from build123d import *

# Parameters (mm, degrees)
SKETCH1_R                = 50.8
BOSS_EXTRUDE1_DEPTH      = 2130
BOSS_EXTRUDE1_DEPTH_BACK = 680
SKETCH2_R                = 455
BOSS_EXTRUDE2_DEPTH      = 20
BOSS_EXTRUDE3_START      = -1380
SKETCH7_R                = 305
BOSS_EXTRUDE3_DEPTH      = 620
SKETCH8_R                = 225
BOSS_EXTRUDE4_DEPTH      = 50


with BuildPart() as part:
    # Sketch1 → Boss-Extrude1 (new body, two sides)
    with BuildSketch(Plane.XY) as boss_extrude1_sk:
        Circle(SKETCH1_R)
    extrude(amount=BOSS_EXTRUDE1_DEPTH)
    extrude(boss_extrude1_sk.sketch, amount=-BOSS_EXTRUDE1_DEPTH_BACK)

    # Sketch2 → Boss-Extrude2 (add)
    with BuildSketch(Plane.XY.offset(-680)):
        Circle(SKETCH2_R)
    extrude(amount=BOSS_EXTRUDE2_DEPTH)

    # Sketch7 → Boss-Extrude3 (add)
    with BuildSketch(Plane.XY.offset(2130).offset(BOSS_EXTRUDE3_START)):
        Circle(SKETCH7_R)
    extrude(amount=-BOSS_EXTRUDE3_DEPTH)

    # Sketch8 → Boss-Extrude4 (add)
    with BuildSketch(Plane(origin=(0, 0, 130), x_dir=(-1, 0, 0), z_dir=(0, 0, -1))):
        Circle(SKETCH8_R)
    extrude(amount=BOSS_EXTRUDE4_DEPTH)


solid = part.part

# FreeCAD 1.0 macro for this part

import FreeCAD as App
import Part
import Sketcher

doc = App.newDocument("Part")
body = doc.addObject("PartDesign::Body", "Body")

sketch1 = doc.addObject("Sketcher::SketchObject", "Sketch")
body.addObject(sketch1)
sketch1.AttachmentSupport = (doc.XY_Plane, [""])
sketch1.MapMode = "FlatFace"
sketch1.addGeometry(Part.Circle(App.Vector(0, 0, 0), App.Vector(0, 0, 1), 51), False)
sketch1.addConstraint([
    Sketcher.Constraint("Coincident", 0, 3, -1, 1),
    Sketcher.Constraint("Diameter", 0, 101.6),
])
pad1 = doc.addObject("PartDesign::Pad", "Pad")
body.addObject(pad1)
pad1.Profile = sketch1
pad1.Type = "TwoLengths"
pad1.Length = 2130
pad1.Length2 = 680

sketch2 = doc.addObject("Sketcher::SketchObject", "Sketch001")
body.addObject(sketch2)
sketch2.AttachmentSupport = (doc.XY_Plane, [""])
sketch2.MapMode = "FlatFace"
sketch2.AttachmentOffset = App.Placement(App.Vector(0, 0, -680), App.Rotation())
sketch2.addGeometry(Part.Circle(App.Vector(0, 0, 0), App.Vector(0, 0, 1), 455), False)
sketch2.addConstraint([
    Sketcher.Constraint("Coincident", 0, 3, -1, 1),
    Sketcher.Constraint("Diameter", 0, 910.0),
])
pad2 = doc.addObject("PartDesign::Pad", "Pad001")
body.addObject(pad2)
pad2.Profile = sketch2
pad2.Length = 20

sketch3 = doc.addObject("Sketcher::SketchObject", "Sketch002")
body.addObject(sketch3)
sketch3.AttachmentSupport = (doc.XY_Plane, [""])
sketch3.MapMode = "FlatFace"
sketch3.AttachmentOffset = App.Placement(App.Vector(0, 0, 750), App.Rotation())
sketch3.addGeometry(Part.Circle(App.Vector(0, 0, 0), App.Vector(0, 0, 1), 305), False)
sketch3.addConstraint([
    Sketcher.Constraint("Coincident", 0, 3, -1, 1),
    Sketcher.Constraint("Diameter", 0, 610.0),
])
pad3 = doc.addObject("PartDesign::Pad", "Pad002")
body.addObject(pad3)
pad3.Profile = sketch3
pad3.Length = 620
pad3.Reversed = True

sketch4 = doc.addObject("Sketcher::SketchObject", "Sketch003")
body.addObject(sketch4)
sketch4.AttachmentSupport = (doc.XY_Plane, [""])
sketch4.MapMode = "FlatFace"
sketch4.AttachmentOffset = App.Placement(App.Vector(0, 0, 130), App.Rotation())
sketch4.addGeometry(Part.Circle(App.Vector(0, 0, 0), App.Vector(0, 0, 1), 225), False)
sketch4.addConstraint([
    Sketcher.Constraint("Coincident", 0, 3, -1, 1),
    Sketcher.Constraint("Diameter", 0, 450.0),
])
pad4 = doc.addObject("PartDesign::Pad", "Pad003")
body.addObject(pad4)
pad4.Profile = sketch4
pad4.Length = 50
pad4.Reversed = True

doc.recompute()
